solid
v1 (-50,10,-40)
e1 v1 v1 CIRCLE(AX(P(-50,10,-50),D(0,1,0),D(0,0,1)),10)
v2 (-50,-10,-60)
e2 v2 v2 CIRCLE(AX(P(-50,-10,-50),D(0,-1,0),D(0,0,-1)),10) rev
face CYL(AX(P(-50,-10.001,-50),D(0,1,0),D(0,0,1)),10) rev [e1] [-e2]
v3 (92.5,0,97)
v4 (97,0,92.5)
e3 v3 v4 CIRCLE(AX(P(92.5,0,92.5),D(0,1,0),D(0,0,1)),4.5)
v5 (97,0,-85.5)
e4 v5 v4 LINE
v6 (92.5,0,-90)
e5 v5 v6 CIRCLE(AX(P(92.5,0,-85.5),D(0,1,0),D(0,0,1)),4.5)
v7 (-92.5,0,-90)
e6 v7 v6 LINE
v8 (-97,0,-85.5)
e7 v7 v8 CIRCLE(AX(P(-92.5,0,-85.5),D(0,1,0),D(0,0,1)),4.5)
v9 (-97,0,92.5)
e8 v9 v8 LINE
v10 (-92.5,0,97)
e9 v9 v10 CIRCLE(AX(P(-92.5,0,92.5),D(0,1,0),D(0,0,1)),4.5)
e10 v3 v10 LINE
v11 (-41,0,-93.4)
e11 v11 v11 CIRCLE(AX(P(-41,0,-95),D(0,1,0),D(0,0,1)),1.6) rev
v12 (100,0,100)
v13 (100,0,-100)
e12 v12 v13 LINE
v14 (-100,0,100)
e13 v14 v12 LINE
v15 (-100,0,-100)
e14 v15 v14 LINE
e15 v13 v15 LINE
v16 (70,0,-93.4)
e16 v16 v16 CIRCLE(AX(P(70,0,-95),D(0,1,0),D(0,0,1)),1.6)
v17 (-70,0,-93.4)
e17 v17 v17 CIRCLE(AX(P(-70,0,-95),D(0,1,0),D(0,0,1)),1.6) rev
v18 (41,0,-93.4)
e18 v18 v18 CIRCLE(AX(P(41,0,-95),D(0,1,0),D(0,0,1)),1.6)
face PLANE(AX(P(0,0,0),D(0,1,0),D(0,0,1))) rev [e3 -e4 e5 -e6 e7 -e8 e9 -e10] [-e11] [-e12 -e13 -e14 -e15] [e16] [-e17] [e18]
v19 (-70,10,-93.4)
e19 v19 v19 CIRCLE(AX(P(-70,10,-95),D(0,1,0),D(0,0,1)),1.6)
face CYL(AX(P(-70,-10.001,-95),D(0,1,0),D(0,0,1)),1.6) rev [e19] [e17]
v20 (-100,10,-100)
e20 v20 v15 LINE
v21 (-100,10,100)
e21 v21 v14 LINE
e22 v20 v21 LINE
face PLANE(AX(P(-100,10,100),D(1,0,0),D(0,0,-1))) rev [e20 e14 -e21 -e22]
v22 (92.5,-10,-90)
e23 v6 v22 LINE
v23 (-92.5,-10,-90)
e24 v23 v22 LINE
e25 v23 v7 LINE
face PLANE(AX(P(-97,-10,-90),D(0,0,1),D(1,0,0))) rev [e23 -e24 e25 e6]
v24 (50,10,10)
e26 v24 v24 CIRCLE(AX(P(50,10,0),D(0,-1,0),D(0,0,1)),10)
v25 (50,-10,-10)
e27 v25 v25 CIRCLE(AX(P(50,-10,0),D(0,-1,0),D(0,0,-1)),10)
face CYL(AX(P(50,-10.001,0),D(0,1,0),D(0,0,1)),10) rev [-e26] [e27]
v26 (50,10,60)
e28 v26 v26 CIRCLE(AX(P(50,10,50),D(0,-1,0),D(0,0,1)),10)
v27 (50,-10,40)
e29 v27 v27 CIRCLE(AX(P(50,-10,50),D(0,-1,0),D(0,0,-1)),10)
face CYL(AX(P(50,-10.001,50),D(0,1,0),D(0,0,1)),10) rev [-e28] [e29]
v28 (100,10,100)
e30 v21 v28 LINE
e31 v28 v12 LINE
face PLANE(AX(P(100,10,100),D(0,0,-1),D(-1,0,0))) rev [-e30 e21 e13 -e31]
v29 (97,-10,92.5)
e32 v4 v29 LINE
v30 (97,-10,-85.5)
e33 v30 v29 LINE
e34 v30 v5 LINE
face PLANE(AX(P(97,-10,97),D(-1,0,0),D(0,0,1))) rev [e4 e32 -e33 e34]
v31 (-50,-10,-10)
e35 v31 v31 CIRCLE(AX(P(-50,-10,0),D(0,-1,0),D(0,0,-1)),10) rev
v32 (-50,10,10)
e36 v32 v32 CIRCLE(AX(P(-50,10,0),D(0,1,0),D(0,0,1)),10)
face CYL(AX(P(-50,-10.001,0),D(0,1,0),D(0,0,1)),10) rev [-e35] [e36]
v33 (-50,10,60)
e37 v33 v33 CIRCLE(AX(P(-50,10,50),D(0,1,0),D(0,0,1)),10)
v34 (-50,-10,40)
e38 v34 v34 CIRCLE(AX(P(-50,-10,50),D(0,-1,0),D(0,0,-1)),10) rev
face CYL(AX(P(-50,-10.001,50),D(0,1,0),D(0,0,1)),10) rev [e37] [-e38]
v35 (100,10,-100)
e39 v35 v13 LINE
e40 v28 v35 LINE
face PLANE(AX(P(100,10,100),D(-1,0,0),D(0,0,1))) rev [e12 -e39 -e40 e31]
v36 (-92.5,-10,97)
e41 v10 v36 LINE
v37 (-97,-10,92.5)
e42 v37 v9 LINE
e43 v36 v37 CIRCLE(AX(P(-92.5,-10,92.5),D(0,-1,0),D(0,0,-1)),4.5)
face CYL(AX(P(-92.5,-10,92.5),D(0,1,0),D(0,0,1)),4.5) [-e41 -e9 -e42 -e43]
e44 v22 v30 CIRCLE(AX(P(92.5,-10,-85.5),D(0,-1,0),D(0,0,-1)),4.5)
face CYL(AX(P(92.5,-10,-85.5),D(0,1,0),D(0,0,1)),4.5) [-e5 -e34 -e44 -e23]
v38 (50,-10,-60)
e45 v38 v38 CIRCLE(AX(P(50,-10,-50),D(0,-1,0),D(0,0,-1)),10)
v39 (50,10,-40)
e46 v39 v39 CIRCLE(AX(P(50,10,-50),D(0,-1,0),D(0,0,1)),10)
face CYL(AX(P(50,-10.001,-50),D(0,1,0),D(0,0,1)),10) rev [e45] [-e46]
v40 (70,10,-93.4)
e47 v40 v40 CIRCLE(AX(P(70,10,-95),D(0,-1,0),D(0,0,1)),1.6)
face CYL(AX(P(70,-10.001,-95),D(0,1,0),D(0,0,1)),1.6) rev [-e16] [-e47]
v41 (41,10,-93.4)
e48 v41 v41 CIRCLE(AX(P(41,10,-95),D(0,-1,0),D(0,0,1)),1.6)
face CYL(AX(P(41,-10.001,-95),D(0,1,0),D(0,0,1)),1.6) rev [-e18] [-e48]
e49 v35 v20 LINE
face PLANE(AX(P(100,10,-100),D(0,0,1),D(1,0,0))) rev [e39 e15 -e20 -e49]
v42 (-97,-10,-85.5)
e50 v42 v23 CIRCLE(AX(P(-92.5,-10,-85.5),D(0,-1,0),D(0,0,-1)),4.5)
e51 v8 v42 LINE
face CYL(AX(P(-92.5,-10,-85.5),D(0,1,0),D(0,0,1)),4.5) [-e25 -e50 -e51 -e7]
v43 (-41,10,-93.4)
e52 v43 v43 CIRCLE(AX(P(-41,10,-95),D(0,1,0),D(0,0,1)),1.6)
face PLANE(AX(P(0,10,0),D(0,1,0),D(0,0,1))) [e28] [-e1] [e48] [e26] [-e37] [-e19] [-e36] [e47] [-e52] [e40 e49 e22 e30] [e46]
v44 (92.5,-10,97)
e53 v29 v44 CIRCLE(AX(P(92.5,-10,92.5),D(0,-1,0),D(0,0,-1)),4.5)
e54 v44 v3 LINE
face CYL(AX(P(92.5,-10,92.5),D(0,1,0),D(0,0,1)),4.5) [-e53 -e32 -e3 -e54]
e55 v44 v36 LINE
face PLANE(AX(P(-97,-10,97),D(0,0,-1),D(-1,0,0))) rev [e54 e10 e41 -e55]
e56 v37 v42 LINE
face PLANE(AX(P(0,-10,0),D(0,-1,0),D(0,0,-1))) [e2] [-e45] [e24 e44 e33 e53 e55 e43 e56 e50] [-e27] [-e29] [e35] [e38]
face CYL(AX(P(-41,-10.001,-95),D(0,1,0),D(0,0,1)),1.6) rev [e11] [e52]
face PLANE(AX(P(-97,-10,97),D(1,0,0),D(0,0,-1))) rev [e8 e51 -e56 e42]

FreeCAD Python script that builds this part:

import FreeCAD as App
import Part
import Sketcher


def edges_at(feature, points):
    """Names of the edges that pass closest to the given points."""
    edges = feature.Shape.Edges
    near = lambda p: min(range(len(edges)), key=lambda i: edges[i].distToShape(Part.Vertex(*p))[0])
    return sorted({f"Edge{near(p) + 1}" for p in points})


def add_polygon(sketch, points):
    """Adds a closed chain of lines whose ends are joined by coincident constraints."""
    first, n = sketch.GeometryCount, len(points)
    for a, b in zip(points, points[1:] + points[:1]):
        sketch.addGeometry(Part.LineSegment(App.Vector(*a, 0), App.Vector(*b, 0)), False)
    for i in range(n):
        sketch.addConstraint(Sketcher.Constraint("Coincident", first + i, 2, first + (i + 1) % n, 1))

doc = App.newDocument("Part")
params = doc.addObject("Spreadsheet::Sheet", "Params")
for row, (alias, value) in enumerate([
    ("sketch1_width", "200 mm"),
    ("pad1_length", "10 mm"),
    ("sketch2_width", "194 mm"),
    ("sketch2_height", "187 mm"),
    ("pad2_length", "10 mm"),
    ("fillet_radius", "4.5 mm"),
    ("sketch3_diameter", "20 mm"),
    ("pocket1_length", "20 mm"),
    ("sketch4_diameter", "3.2 mm"),
    ("pocket2_length", "10 mm"),
], start=1):
    params.set(f"A{row}", alias)
    params.set(f"B{row}", "=" + value)
    params.setAlias(f"B{row}", alias)

body = doc.addObject("PartDesign::Body", "Body")

sketch1 = body.newObject("Sketcher::SketchObject", "Sketch")
sketch1.AttachmentSupport = (doc.getObject("XZ_Plane"), [""])
sketch1.MapMode = "FlatFace"
add_polygon(sketch1, [(-100, -100), (-100, 100), (100, 100), (100, -100)])
sketch1.addConstraint(Sketcher.Constraint("Vertical", 0))
sketch1.addConstraint(Sketcher.Constraint("Horizontal", 1))
sketch1.addConstraint(Sketcher.Constraint("Vertical", 2))
sketch1.addConstraint(Sketcher.Constraint("Horizontal", 3))
sketch1.addConstraint(Sketcher.Constraint("Symmetric", 0, 2, 2, 2, -1, 1))
sketch1.addConstraint(Sketcher.Constraint("Equal", 3, 0))
sketch1.addConstraint(Sketcher.Constraint("DistanceX", 1, 1, 1, 2, 200.0))
sketch1.setExpression("Constraints[10]", "Params.sketch1_width")
pad1 = body.newObject("PartDesign::Pad", "Pad")
pad1.Profile = sketch1
pad1.setExpression("Length", "Params.pad1_length")
pad1.Reversed = True

sketch2 = body.newObject("Sketcher::SketchObject", "Sketch001")
sketch2.AttachmentSupport = (doc.getObject("XZ_Plane"), [""])
sketch2.MapMode = "FlatFace"
add_polygon(sketch2, [(-97, 97), (-97, -90), (97, -90), (97, 97)])
sketch2.addConstraint(Sketcher.Constraint("Vertical", 0))
sketch2.addConstraint(Sketcher.Constraint("Horizontal", 1))
sketch2.addConstraint(Sketcher.Constraint("Vertical", 2))
sketch2.addConstraint(Sketcher.Constraint("Horizontal", 3))
sketch2.addConstraint(Sketcher.Constraint("DistanceX", 1, 1, 1, 2, 194.0))
sketch2.addConstraint(Sketcher.Constraint("DistanceY", 0, 2, 0, 1, 187.0))
sketch2.addConstraint(Sketcher.Constraint("DistanceX", 0, 2, -1, 1, 97.0))
sketch2.addConstraint(Sketcher.Constraint("DistanceY", 0, 2, -1, 1, 90.0))
sketch2.setExpression("Constraints[8]", "Params.sketch2_width")
sketch2.setExpression("Constraints[9]", "Params.sketch2_height")
pad2 = body.newObject("PartDesign::Pad", "Pad001")
pad2.Profile = sketch2
pad2.setExpression("Length", "Params.pad2_length")
doc.recompute()

fillet = body.newObject("PartDesign::Fillet", "Fillet")
fillet.Base = (pad2, edges_at(pad2, [
    (-97, -5, 97),
    (-97, -5, -90),
    (97, -5, -90),
    (97, -5, 97),
]))
fillet.setExpression("Radius", "Params.fillet_radius")

sketch3 = body.newObject("Sketcher::SketchObject", "Sketch002")
sketch3.AttachmentSupport = (doc.getObject("XZ_Plane"), [""])
sketch3.MapMode = "FlatFace"
sketch3.AttachmentOffset = App.Placement(App.Vector(0, 0, -10), App.Rotation())
sketch3.addGeometry(Part.Circle(App.Vector(-50, -50, 0), App.Vector(0, 0, 1), 10), False)
sketch3.addGeometry(Part.Circle(App.Vector(-50, 0, 0), App.Vector(0, 0, 1), 10), False)
sketch3.addGeometry(Part.Circle(App.Vector(-50, 50, 0), App.Vector(0, 0, 1), 10), False)
sketch3.addConstraint(Sketcher.Constraint("Equal", 0, 1))
sketch3.addConstraint(Sketcher.Constraint("Equal", 1, 2))
sketch3.addConstraint(Sketcher.Constraint("Symmetric", 0, 3, 2, 3, -1))
sketch3.addConstraint(Sketcher.Constraint("PointOnObject", 1, 3, -1))
sketch3.addConstraint(Sketcher.Constraint("Vertical", 0, 3, 1, 3))
sketch3.addConstraint(Sketcher.Constraint("Diameter", 0, 20.0))
sketch3.addConstraint(Sketcher.Constraint("DistanceX", 0, 3, -1, 1, 50.0))
sketch3.addConstraint(Sketcher.Constraint("DistanceY", 0, 3, -1, 1, 50.0))
sketch3.setExpression("Constraints[5]", "Params.sketch3_diameter")
pocket1 = body.newObject("PartDesign::Pocket", "Pocket")
pocket1.Profile = sketch3
pocket1.setExpression("Length", "Params.pocket1_length")
pocket1.Reversed = True
doc.recompute()

mirrored = body.newObject("PartDesign::Mirrored", "Mirrored")
mirrored.Originals = [pocket1]
mirrored.MirrorPlane = (doc.getObject("YZ_Plane"), [""])
body.Tip = mirrored

sketch4 = body.newObject("Sketcher::SketchObject", "Sketch003")
sketch4.AttachmentSupport = (doc.getObject("XZ_Plane"), [""])
sketch4.MapMode = "FlatFace"
sketch4.AttachmentOffset = App.Placement(App.Vector(0, 0, -10), App.Rotation())
sketch4.addGeometry(Part.Circle(App.Vector(-70, -95, 0), App.Vector(0, 0, 1), 1.6), False)
sketch4.addGeometry(Part.Circle(App.Vector(-41, -95, 0), App.Vector(0, 0, 1), 1.6), False)
sketch4.addConstraint(Sketcher.Constraint("Equal", 0, 1))
sketch4.addConstraint(Sketcher.Constraint("Horizontal", 0, 3, 1, 3))
sketch4.addConstraint(Sketcher.Constraint("Diameter", 0, 3.2))
sketch4.addConstraint(Sketcher.Constraint("DistanceX", 0, 3, -1, 1, 70.0))
sketch4.addConstraint(Sketcher.Constraint("DistanceY", 0, 3, -1, 1, 95.0))
sketch4.addConstraint(Sketcher.Constraint("DistanceX", 1, 3, -1, 1, 41.0))
sketch4.setExpression("Constraints[2]", "Params.sketch4_diameter")
pocket2 = body.newObject("PartDesign::Pocket", "Pocket001")
pocket2.Profile = sketch4
pocket2.setExpression("Length", "Params.pocket2_length")
pocket2.Reversed = True
doc.recompute()

mirrored2 = body.newObject("PartDesign::Mirrored", "Mirrored001")
mirrored2.Originals = [pocket2]
mirrored2.MirrorPlane = (doc.getObject("YZ_Plane"), [""])
body.Tip = mirrored2

doc.recompute()
